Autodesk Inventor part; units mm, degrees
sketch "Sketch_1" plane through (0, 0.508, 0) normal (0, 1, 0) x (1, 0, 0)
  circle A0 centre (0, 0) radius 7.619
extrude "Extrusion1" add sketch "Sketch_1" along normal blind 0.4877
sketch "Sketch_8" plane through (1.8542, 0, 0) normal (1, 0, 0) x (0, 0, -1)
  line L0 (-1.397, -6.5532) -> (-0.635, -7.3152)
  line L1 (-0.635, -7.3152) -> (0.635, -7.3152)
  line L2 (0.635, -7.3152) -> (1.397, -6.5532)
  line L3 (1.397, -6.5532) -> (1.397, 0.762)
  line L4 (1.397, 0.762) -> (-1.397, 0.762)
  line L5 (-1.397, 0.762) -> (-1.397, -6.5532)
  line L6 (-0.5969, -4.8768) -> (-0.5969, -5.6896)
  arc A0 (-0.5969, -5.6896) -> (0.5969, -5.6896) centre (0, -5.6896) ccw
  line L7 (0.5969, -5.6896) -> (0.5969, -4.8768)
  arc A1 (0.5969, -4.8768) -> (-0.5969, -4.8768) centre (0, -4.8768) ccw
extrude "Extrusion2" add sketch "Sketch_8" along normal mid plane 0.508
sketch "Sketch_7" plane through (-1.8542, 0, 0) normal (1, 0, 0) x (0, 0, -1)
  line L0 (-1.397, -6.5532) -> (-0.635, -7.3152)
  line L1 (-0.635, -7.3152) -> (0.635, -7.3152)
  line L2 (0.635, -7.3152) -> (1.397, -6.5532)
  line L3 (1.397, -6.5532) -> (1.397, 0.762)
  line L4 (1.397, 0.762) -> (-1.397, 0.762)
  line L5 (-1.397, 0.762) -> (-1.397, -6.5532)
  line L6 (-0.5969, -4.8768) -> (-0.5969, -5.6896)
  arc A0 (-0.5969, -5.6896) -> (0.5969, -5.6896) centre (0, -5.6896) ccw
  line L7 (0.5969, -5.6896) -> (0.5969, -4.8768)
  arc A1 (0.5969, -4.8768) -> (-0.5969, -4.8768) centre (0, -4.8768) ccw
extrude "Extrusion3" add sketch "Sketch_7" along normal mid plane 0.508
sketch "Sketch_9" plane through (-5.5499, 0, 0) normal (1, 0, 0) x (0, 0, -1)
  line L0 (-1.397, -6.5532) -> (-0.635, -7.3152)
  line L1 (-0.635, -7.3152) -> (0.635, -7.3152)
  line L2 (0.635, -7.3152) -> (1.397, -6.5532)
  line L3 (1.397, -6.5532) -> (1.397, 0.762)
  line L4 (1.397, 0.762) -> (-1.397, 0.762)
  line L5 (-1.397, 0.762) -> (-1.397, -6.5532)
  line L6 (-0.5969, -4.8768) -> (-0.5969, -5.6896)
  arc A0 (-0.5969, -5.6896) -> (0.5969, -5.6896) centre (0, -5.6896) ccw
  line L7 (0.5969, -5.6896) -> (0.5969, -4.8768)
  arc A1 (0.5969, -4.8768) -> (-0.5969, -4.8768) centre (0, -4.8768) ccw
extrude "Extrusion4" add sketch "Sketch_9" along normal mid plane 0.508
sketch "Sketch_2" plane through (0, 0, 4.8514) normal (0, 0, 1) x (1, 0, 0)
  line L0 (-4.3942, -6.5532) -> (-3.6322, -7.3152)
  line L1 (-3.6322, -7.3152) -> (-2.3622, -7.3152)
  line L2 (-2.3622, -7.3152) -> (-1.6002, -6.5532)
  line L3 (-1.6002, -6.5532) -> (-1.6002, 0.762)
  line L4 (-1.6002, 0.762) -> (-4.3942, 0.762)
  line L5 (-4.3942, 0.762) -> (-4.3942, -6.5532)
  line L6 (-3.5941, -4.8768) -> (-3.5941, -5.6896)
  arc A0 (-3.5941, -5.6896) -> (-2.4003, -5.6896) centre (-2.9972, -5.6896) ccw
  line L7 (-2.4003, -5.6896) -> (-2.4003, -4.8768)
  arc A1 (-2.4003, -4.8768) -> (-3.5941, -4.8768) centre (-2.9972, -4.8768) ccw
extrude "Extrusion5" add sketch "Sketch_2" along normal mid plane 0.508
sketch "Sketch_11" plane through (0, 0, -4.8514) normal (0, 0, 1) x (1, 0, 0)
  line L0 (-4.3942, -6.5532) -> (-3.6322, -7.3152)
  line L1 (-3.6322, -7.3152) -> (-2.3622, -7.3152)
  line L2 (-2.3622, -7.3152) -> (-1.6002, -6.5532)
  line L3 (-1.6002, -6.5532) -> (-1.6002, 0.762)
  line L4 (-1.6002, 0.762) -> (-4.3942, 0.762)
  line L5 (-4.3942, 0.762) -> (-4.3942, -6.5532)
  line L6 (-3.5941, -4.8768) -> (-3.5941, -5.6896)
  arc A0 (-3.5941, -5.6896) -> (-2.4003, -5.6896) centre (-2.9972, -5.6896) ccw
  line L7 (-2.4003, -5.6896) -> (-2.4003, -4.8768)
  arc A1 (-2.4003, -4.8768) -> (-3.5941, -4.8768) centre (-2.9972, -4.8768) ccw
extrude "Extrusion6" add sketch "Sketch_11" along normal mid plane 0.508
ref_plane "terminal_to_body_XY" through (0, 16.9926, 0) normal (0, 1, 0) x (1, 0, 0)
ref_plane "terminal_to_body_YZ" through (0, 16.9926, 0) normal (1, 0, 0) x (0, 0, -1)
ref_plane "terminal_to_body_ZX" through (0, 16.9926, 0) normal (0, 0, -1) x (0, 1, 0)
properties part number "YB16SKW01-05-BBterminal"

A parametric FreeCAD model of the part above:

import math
import FreeCAD as App
import Part
import Sketcher
Q = App.Units.Quantity


def add_polygon(sketch, points):
    """Adds a closed chain of lines whose ends are joined by coincident constraints."""
    first, n = sketch.GeometryCount, len(points)
    for a, b in zip(points, points[1:] + points[:1]):
        sketch.addGeometry(Part.LineSegment(App.Vector(*a, 0), App.Vector(*b, 0)), False)
    for i in range(n):
        sketch.addConstraint(Sketcher.Constraint("Coincident", first + i, 2, first + (i + 1) % n, 1))

doc = App.newDocument("Part")
body = doc.addObject("PartDesign::Body", "Body")

# Sketch on XZ plane
sketch1 = body.newObject("Sketcher::SketchObject", "Sketch")
sketch1.AttachmentSupport = (doc.getObject("XZ_Plane"), [""])
sketch1.MapMode = "FlatFace"
sketch1.AttachmentOffset = App.Placement(App.Vector(0, 0, -0.02 * 25.4), App.Rotation())
sketch1.addGeometry(Part.Circle(App.Vector(0, 0, 0), App.Vector(0, 0, 1), 7.619), False)
sketch1.addConstraint(Sketcher.Constraint("Coincident", 0, 3, -1, 1))
sketch1.addConstraint(Sketcher.Constraint("Diameter", 0, Q("15.238 mm")))
pad1 = body.newObject("PartDesign::Pad", "Pad")
pad1.Profile = sketch1
pad1.Length = Q("0.0192008 in")
pad1.Reversed = True

# Sketch on YZ plane
sketch2 = body.newObject("Sketcher::SketchObject", "Sketch001")
sketch2.AttachmentSupport = (doc.getObject("YZ_Plane"), [""])
sketch2.MapMode = "FlatFace"
sketch2.AttachmentOffset = App.Placement(App.Vector(0, 0, 0.073 * 25.4), App.Rotation())
add_polygon(sketch2, [(0.762, 1.397), (-6.5532, 1.397), (-7.3152, 0.635), (-7.3152, -0.635), (-6.5532, -1.397), (0.762, -1.397)])  # lines 0-5
sketch2.addGeometry(Part.LineSegment(App.Vector(-5.6896, 0.5969, 0), App.Vector(-4.8768, 0.5969, 0)), False)  # 6
sketch2.addGeometry(Part.ArcOfCircle(Part.Circle(App.Vector(-4.8768, 0, 0), App.Vector(0, 0, 1), 0.5969), math.radians(-90), math.radians(90)), False)  # 7
sketch2.addGeometry(Part.LineSegment(App.Vector(-4.8768, -0.5969, 0), App.Vector(-5.6896, -0.5969, 0)), False)  # 8
sketch2.addGeometry(Part.ArcOfCircle(Part.Circle(App.Vector(-5.6896, 0, 0), App.Vector(0, 0, 1), 0.5969), math.radians(90), math.radians(270)), False)  # 9
sketch2.addConstraint(Sketcher.Constraint("Tangent", 6, 2, 7, 2))
sketch2.addConstraint(Sketcher.Constraint("Tangent", 7, 1, 8, 1))
sketch2.addConstraint(Sketcher.Constraint("Tangent", 8, 2, 9, 2))
sketch2.addConstraint(Sketcher.Constraint("Tangent", 9, 1, 6, 1))
sketch2.addConstraint(Sketcher.Constraint("Horizontal", 0))
sketch2.addConstraint(Sketcher.Constraint("Vertical", 2))
sketch2.addConstraint(Sketcher.Constraint("Horizontal", 4))
sketch2.addConstraint(Sketcher.Constraint("Vertical", 5))
sketch2.addConstraint(Sketcher.Constraint("Horizontal", 6))
sketch2.addConstraint(Sketcher.Constraint("Horizontal", 8))
sketch2.addConstraint(Sketcher.Constraint("Symmetric", 0, 2, 3, 2, -1))
sketch2.addConstraint(Sketcher.Constraint("PointOnObject", 7, 3, -1))
sketch2.addConstraint(Sketcher.Constraint("Perpendicular", 1, 3))
sketch2.addConstraint(Sketcher.Constraint("Equal", 1, 3))
sketch2.addConstraint(Sketcher.Constraint("DistanceY", 2, 2, 2, 1, Q("0.05 in")))
sketch2.addConstraint(Sketcher.Constraint("DistanceY", 5, 1, 5, 2, Q("0.11 in")))
sketch2.addConstraint(Sketcher.Constraint("Radius", 7, Q("0.0235 in")))
sketch2.addConstraint(Sketcher.Constraint("DistanceX", 0, 2, 0, 1, Q("0.288 in")))
sketch2.addConstraint(Sketcher.Constraint("DistanceX", 6, 1, 6, 2, Q("0.032 in")))
sketch2.addConstraint(Sketcher.Constraint("DistanceX", -1, 1, 4, 2, Q("0.03 in")))
sketch2.addConstraint(Sketcher.Constraint("DistanceX", 7, 3, -1, 1, Q("0.192 in")))
pad2 = body.newObject("PartDesign::Pad", "Pad001")
pad2.Profile = sketch2
pad2.Length = Q("0.02 in")
pad2.Midplane = True

# Sketch on YZ plane
sketch3 = body.newObject("Sketcher::SketchObject", "Sketch002")
sketch3.AttachmentSupport = (doc.getObject("YZ_Plane"), [""])
sketch3.MapMode = "FlatFace"
sketch3.AttachmentOffset = App.Placement(App.Vector(0, 0, -0.073 * 25.4), App.Rotation())
add_polygon(sketch3, [(0.762, 1.397), (-6.5532, 1.397), (-7.3152, 0.635), (-7.3152, -0.635), (-6.5532, -1.397), (0.762, -1.397)])  # lines 0-5
sketch3.addGeometry(Part.LineSegment(App.Vector(-5.6896, 0.5969, 0), App.Vector(-4.8768, 0.5969, 0)), False)  # 6
sketch3.addGeometry(Part.ArcOfCircle(Part.Circle(App.Vector(-4.8768, 0, 0), App.Vector(0, 0, 1), 0.5969), math.radians(-90), math.radians(90)), False)  # 7
sketch3.addGeometry(Part.LineSegment(App.Vector(-4.8768, -0.5969, 0), App.Vector(-5.6896, -0.5969, 0)), False)  # 8
sketch3.addGeometry(Part.ArcOfCircle(Part.Circle(App.Vector(-5.6896, 0, 0), App.Vector(0, 0, 1), 0.5969), math.radians(90), math.radians(270)), False)  # 9
sketch3.addConstraint(Sketcher.Constraint("Tangent", 6, 2, 7, 2))
sketch3.addConstraint(Sketcher.Constraint("Tangent", 7, 1, 8, 1))
sketch3.addConstraint(Sketcher.Constraint("Tangent", 8, 2, 9, 2))
sketch3.addConstraint(Sketcher.Constraint("Tangent", 9, 1, 6, 1))
sketch3.addConstraint(Sketcher.Constraint("Horizontal", 0))
sketch3.addConstraint(Sketcher.Constraint("Vertical", 2))
sketch3.addConstraint(Sketcher.Constraint("Horizontal", 4))
sketch3.addConstraint(Sketcher.Constraint("Vertical", 5))
sketch3.addConstraint(Sketcher.Constraint("Horizontal", 6))
sketch3.addConstraint(Sketcher.Constraint("Horizontal", 8))
sketch3.addConstraint(Sketcher.Constraint("Symmetric", 0, 2, 3, 2, -1))
sketch3.addConstraint(Sketcher.Constraint("PointOnObject", 7, 3, -1))
sketch3.addConstraint(Sketcher.Constraint("Perpendicular", 1, 3))
sketch3.addConstraint(Sketcher.Constraint("Equal", 1, 3))
sketch3.addConstraint(Sketcher.Constraint("DistanceY", 2, 2, 2, 1, Q("0.05 in")))
sketch3.addConstraint(Sketcher.Constraint("DistanceY", 5, 1, 5, 2, Q("0.11 in")))
sketch3.addConstraint(Sketcher.Constraint("Radius", 7, Q("0.0235 in")))
sketch3.addConstraint(Sketcher.Constraint("DistanceX", 0, 2, 0, 1, Q("0.288 in")))
sketch3.addConstraint(Sketcher.Constraint("DistanceX", 6, 1, 6, 2, Q("0.032 in")))
sketch3.addConstraint(Sketcher.Constraint("DistanceX", -1, 1, 4, 2, Q("0.03 in")))
sketch3.addConstraint(Sketcher.Constraint("DistanceX", 7, 3, -1, 1, Q("0.192 in")))
pad3 = body.newObject("PartDesign::Pad", "Pad002")
pad3.Profile = sketch3
pad3.Length = Q("0.02 in")
pad3.Midplane = True

# Sketch on YZ plane
sketch4 = body.newObject("Sketcher::SketchObject", "Sketch003")
sketch4.AttachmentSupport = (doc.getObject("YZ_Plane"), [""])
sketch4.MapMode = "FlatFace"
sketch4.AttachmentOffset = App.Placement(App.Vector(0, 0, -0.2185 * 25.4), App.Rotation())
add_polygon(sketch4, [(0.762, 1.397), (-6.5532, 1.397), (-7.3152, 0.635), (-7.3152, -0.635), (-6.5532, -1.397), (0.762, -1.397)])  # lines 0-5
sketch4.addGeometry(Part.LineSegment(App.Vector(-5.6896, 0.5969, 0), App.Vector(-4.8768, 0.5969, 0)), False)  # 6
sketch4.addGeometry(Part.ArcOfCircle(Part.Circle(App.Vector(-4.8768, 0, 0), App.Vector(0, 0, 1), 0.5969), math.radians(-90), math.radians(90)), False)  # 7
sketch4.addGeometry(Part.LineSegment(App.Vector(-4.8768, -0.5969, 0), App.Vector(-5.6896, -0.5969, 0)), False)  # 8
sketch4.addGeometry(Part.ArcOfCircle(Part.Circle(App.Vector(-5.6896, 0, 0), App.Vector(0, 0, 1), 0.5969), math.radians(90), math.radians(270)), False)  # 9
sketch4.addConstraint(Sketcher.Constraint("Tangent", 6, 2, 7, 2))
sketch4.addConstraint(Sketcher.Constraint("Tangent", 7, 1, 8, 1))
sketch4.addConstraint(Sketcher.Constraint("Tangent", 8, 2, 9, 2))
sketch4.addConstraint(Sketcher.Constraint("Tangent", 9, 1, 6, 1))
sketch4.addConstraint(Sketcher.Constraint("Horizontal", 0))
sketch4.addConstraint(Sketcher.Constraint("Vertical", 2))
sketch4.addConstraint(Sketcher.Constraint("Horizontal", 4))
sketch4.addConstraint(Sketcher.Constraint("Vertical", 5))
sketch4.addConstraint(Sketcher.Constraint("Horizontal", 6))
sketch4.addConstraint(Sketcher.Constraint("Horizontal", 8))
sketch4.addConstraint(Sketcher.Constraint("Symmetric", 0, 2, 3, 2, -1))
sketch4.addConstraint(Sketcher.Constraint("PointOnObject", 7, 3, -1))
sketch4.addConstraint(Sketcher.Constraint("Perpendicular", 1, 3))
sketch4.addConstraint(Sketcher.Constraint("Equal", 1, 3))
sketch4.addConstraint(Sketcher.Constraint("DistanceY", 2, 2, 2, 1, Q("0.05 in")))
sketch4.addConstraint(Sketcher.Constraint("DistanceY", 5, 1, 5, 2, Q("0.11 in")))
sketch4.addConstraint(Sketcher.Constraint("Radius", 7, Q("0.0235 in")))
sketch4.addConstraint(Sketcher.Constraint("DistanceX", 0, 2, 0, 1, Q("0.288 in")))
sketch4.addConstraint(Sketcher.Constraint("DistanceX", 6, 1, 6, 2, Q("0.032 in")))
sketch4.addConstraint(Sketcher.Constraint("DistanceX", -1, 1, 4, 2, Q("0.03 in")))
sketch4.addConstraint(Sketcher.Constraint("DistanceX", 7, 3, -1, 1, Q("0.192 in")))
pad4 = body.newObject("PartDesign::Pad", "Pad003")
pad4.Profile = sketch4
pad4.Length = Q("0.02 in")
pad4.Midplane = True

# Sketch on XY plane
sketch5 = body.newObject("Sketcher::SketchObject", "Sketch004")
sketch5.AttachmentSupport = (doc.getObject("XY_Plane"), [""])
sketch5.MapMode = "FlatFace"
sketch5.AttachmentOffset = App.Placement(App.Vector(0, 0, 0.191 * 25.4), App.Rotation())
add_polygon(sketch5, [(-4.3942, 0.762), (-4.3942, -6.5532), (-3.6322, -7.3152), (-2.3622, -7.3152), (-1.6002, -6.5532), (-1.6002, 0.762)])  # lines 0-5
sketch5.addGeometry(Part.LineSegment(App.Vector(-3.5941, -5.6896, 0), App.Vector(-3.5941, -4.8768, 0)), False)  # 6
sketch5.addGeometry(Part.ArcOfCircle(Part.Circle(App.Vector(-2.9972, -4.8768, 0), App.Vector(0, 0, 1), 0.5969), math.radians(0), math.radians(180)), False)  # 7
sketch5.addGeometry(Part.LineSegment(App.Vector(-2.4003, -4.8768, 0), App.Vector(-2.4003, -5.6896, 0)), False)  # 8
sketch5.addGeometry(Part.ArcOfCircle(Part.Circle(App.Vector(-2.9972, -5.6896, 0), App.Vector(0, 0, 1), 0.5969), math.radians(180), math.radians(360)), False)  # 9
sketch5.addConstraint(Sketcher.Constraint("Tangent", 6, 2, 7, 2))
sketch5.addConstraint(Sketcher.Constraint("Tangent", 7, 1, 8, 1))
sketch5.addConstraint(Sketcher.Constraint("Tangent", 8, 2, 9, 2))
sketch5.addConstraint(Sketcher.Constraint("Tangent", 9, 1, 6, 1))
sketch5.addConstraint(Sketcher.Constraint("Vertical", 0))
sketch5.addConstraint(Sketcher.Constraint("Horizontal", 2))
sketch5.addConstraint(Sketcher.Constraint("Vertical", 4))
sketch5.addConstraint(Sketcher.Constraint("Horizontal", 5))
sketch5.addConstraint(Sketcher.Constraint("Vertical", 6))
sketch5.addConstraint(Sketcher.Constraint("Vertical", 8))
sketch5.addConstraint(Sketcher.Constraint("Perpendicular", 1, 3))
sketch5.addConstraint(Sketcher.Constraint("Horizontal", 0, 2, 3, 2))
sketch5.addConstraint(Sketcher.Constraint("Equal", 1, 3))
sketch5.addConstraint(Sketcher.Constraint("DistanceX", 2, 1, 2, 2, Q("0.05 in")))
sketch5.addConstraint(Sketcher.Constraint("DistanceX", 5, 2, 5, 1, Q("0.11 in")))
sketch5.addConstraint(Sketcher.Constraint("Radius", 7, Q("0.0235 in")))
sketch5.addConstraint(Sketcher.Constraint("DistanceY", 0, 2, 0, 1, Q("0.288 in")))
sketch5.addConstraint(Sketcher.Constraint("DistanceY", 6, 1, 6, 2, Q("0.032 in")))
sketch5.addConstraint(Sketcher.Constraint("DistanceY", -1, 1, 4, 2, Q("0.03 in")))
sketch5.addConstraint(Sketcher.Constraint("DistanceX", 7, 3, -1, 1, Q("0.118 in")))
sketch5.addConstraint(Sketcher.Constraint("DistanceY", 7, 3, -1, 1, Q("0.192 in")))
sketch5.addConstraint(Sketcher.Constraint("DistanceX", 0, 2, -1, 1, Q("0.173 in")))
pad5 = body.newObject("PartDesign::Pad", "Pad004")
pad5.Profile = sketch5
pad5.Length = Q("0.02 in")
pad5.Midplane = True

# Sketch on XY plane
sketch6 = body.newObject("Sketcher::SketchObject", "Sketch005")
sketch6.AttachmentSupport = (doc.getObject("XY_Plane"), [""])
sketch6.MapMode = "FlatFace"
sketch6.AttachmentOffset = App.Placement(App.Vector(0, 0, -0.191 * 25.4), App.Rotation())
add_polygon(sketch6, [(-4.3942, 0.762), (-4.3942, -6.5532), (-3.6322, -7.3152), (-2.3622, -7.3152), (-1.6002, -6.5532), (-1.6002, 0.762)])  # lines 0-5
sketch6.addGeometry(Part.LineSegment(App.Vector(-3.5941, -5.6896, 0), App.Vector(-3.5941, -4.8768, 0)), False)  # 6
sketch6.addGeometry(Part.ArcOfCircle(Part.Circle(App.Vector(-2.9972, -4.8768, 0), App.Vector(0, 0, 1), 0.5969), math.radians(0), math.radians(180)), False)  # 7
sketch6.addGeometry(Part.LineSegment(App.Vector(-2.4003, -4.8768, 0), App.Vector(-2.4003, -5.6896, 0)), False)  # 8
sketch6.addGeometry(Part.ArcOfCircle(Part.Circle(App.Vector(-2.9972, -5.6896, 0), App.Vector(0, 0, 1), 0.5969), math.radians(180), math.radians(360)), False)  # 9
sketch6.addConstraint(Sketcher.Constraint("Tangent", 6, 2, 7, 2))
sketch6.addConstraint(Sketcher.Constraint("Tangent", 7, 1, 8, 1))
sketch6.addConstraint(Sketcher.Constraint("Tangent", 8, 2, 9, 2))
sketch6.addConstraint(Sketcher.Constraint("Tangent", 9, 1, 6, 1))
sketch6.addConstraint(Sketcher.Constraint("Vertical", 0))
sketch6.addConstraint(Sketcher.Constraint("Horizontal", 2))
sketch6.addConstraint(Sketcher.Constraint("Vertical", 4))
sketch6.addConstraint(Sketcher.Constraint("Horizontal", 5))
sketch6.addConstraint(Sketcher.Constraint("Vertical", 6))
sketch6.addConstraint(Sketcher.Constraint("Vertical", 8))
sketch6.addConstraint(Sketcher.Constraint("Perpendicular", 1, 3))
sketch6.addConstraint(Sketcher.Constraint("Horizontal", 0, 2, 3, 2))
sketch6.addConstraint(Sketcher.Constraint("Equal", 1, 3))
sketch6.addConstraint(Sketcher.Constraint("DistanceX", 2, 1, 2, 2, Q("0.05 in")))
sketch6.addConstraint(Sketcher.Constraint("DistanceX", 5, 2, 5, 1, Q("0.11 in")))
sketch6.addConstraint(Sketcher.Constraint("Radius", 7, Q("0.0235 in")))
sketch6.addConstraint(Sketcher.Constraint("DistanceY", 0, 2, 0, 1, Q("0.288 in")))
sketch6.addConstraint(Sketcher.Constraint("DistanceY", 6, 1, 6, 2, Q("0.032 in")))
sketch6.addConstraint(Sketcher.Constraint("DistanceY", -1, 1, 4, 2, Q("0.03 in")))
sketch6.addConstraint(Sketcher.Constraint("DistanceX", 7, 3, -1, 1, Q("0.118 in")))
sketch6.addConstraint(Sketcher.Constraint("DistanceY", 7, 3, -1, 1, Q("0.192 in")))
sketch6.addConstraint(Sketcher.Constraint("DistanceX", 0, 2, -1, 1, Q("0.173 in")))
pad6 = body.newObject("PartDesign::Pad", "Pad005")
pad6.Profile = sketch6
pad6.Length = Q("0.02 in")
pad6.Midplane = True

doc.recompute()
